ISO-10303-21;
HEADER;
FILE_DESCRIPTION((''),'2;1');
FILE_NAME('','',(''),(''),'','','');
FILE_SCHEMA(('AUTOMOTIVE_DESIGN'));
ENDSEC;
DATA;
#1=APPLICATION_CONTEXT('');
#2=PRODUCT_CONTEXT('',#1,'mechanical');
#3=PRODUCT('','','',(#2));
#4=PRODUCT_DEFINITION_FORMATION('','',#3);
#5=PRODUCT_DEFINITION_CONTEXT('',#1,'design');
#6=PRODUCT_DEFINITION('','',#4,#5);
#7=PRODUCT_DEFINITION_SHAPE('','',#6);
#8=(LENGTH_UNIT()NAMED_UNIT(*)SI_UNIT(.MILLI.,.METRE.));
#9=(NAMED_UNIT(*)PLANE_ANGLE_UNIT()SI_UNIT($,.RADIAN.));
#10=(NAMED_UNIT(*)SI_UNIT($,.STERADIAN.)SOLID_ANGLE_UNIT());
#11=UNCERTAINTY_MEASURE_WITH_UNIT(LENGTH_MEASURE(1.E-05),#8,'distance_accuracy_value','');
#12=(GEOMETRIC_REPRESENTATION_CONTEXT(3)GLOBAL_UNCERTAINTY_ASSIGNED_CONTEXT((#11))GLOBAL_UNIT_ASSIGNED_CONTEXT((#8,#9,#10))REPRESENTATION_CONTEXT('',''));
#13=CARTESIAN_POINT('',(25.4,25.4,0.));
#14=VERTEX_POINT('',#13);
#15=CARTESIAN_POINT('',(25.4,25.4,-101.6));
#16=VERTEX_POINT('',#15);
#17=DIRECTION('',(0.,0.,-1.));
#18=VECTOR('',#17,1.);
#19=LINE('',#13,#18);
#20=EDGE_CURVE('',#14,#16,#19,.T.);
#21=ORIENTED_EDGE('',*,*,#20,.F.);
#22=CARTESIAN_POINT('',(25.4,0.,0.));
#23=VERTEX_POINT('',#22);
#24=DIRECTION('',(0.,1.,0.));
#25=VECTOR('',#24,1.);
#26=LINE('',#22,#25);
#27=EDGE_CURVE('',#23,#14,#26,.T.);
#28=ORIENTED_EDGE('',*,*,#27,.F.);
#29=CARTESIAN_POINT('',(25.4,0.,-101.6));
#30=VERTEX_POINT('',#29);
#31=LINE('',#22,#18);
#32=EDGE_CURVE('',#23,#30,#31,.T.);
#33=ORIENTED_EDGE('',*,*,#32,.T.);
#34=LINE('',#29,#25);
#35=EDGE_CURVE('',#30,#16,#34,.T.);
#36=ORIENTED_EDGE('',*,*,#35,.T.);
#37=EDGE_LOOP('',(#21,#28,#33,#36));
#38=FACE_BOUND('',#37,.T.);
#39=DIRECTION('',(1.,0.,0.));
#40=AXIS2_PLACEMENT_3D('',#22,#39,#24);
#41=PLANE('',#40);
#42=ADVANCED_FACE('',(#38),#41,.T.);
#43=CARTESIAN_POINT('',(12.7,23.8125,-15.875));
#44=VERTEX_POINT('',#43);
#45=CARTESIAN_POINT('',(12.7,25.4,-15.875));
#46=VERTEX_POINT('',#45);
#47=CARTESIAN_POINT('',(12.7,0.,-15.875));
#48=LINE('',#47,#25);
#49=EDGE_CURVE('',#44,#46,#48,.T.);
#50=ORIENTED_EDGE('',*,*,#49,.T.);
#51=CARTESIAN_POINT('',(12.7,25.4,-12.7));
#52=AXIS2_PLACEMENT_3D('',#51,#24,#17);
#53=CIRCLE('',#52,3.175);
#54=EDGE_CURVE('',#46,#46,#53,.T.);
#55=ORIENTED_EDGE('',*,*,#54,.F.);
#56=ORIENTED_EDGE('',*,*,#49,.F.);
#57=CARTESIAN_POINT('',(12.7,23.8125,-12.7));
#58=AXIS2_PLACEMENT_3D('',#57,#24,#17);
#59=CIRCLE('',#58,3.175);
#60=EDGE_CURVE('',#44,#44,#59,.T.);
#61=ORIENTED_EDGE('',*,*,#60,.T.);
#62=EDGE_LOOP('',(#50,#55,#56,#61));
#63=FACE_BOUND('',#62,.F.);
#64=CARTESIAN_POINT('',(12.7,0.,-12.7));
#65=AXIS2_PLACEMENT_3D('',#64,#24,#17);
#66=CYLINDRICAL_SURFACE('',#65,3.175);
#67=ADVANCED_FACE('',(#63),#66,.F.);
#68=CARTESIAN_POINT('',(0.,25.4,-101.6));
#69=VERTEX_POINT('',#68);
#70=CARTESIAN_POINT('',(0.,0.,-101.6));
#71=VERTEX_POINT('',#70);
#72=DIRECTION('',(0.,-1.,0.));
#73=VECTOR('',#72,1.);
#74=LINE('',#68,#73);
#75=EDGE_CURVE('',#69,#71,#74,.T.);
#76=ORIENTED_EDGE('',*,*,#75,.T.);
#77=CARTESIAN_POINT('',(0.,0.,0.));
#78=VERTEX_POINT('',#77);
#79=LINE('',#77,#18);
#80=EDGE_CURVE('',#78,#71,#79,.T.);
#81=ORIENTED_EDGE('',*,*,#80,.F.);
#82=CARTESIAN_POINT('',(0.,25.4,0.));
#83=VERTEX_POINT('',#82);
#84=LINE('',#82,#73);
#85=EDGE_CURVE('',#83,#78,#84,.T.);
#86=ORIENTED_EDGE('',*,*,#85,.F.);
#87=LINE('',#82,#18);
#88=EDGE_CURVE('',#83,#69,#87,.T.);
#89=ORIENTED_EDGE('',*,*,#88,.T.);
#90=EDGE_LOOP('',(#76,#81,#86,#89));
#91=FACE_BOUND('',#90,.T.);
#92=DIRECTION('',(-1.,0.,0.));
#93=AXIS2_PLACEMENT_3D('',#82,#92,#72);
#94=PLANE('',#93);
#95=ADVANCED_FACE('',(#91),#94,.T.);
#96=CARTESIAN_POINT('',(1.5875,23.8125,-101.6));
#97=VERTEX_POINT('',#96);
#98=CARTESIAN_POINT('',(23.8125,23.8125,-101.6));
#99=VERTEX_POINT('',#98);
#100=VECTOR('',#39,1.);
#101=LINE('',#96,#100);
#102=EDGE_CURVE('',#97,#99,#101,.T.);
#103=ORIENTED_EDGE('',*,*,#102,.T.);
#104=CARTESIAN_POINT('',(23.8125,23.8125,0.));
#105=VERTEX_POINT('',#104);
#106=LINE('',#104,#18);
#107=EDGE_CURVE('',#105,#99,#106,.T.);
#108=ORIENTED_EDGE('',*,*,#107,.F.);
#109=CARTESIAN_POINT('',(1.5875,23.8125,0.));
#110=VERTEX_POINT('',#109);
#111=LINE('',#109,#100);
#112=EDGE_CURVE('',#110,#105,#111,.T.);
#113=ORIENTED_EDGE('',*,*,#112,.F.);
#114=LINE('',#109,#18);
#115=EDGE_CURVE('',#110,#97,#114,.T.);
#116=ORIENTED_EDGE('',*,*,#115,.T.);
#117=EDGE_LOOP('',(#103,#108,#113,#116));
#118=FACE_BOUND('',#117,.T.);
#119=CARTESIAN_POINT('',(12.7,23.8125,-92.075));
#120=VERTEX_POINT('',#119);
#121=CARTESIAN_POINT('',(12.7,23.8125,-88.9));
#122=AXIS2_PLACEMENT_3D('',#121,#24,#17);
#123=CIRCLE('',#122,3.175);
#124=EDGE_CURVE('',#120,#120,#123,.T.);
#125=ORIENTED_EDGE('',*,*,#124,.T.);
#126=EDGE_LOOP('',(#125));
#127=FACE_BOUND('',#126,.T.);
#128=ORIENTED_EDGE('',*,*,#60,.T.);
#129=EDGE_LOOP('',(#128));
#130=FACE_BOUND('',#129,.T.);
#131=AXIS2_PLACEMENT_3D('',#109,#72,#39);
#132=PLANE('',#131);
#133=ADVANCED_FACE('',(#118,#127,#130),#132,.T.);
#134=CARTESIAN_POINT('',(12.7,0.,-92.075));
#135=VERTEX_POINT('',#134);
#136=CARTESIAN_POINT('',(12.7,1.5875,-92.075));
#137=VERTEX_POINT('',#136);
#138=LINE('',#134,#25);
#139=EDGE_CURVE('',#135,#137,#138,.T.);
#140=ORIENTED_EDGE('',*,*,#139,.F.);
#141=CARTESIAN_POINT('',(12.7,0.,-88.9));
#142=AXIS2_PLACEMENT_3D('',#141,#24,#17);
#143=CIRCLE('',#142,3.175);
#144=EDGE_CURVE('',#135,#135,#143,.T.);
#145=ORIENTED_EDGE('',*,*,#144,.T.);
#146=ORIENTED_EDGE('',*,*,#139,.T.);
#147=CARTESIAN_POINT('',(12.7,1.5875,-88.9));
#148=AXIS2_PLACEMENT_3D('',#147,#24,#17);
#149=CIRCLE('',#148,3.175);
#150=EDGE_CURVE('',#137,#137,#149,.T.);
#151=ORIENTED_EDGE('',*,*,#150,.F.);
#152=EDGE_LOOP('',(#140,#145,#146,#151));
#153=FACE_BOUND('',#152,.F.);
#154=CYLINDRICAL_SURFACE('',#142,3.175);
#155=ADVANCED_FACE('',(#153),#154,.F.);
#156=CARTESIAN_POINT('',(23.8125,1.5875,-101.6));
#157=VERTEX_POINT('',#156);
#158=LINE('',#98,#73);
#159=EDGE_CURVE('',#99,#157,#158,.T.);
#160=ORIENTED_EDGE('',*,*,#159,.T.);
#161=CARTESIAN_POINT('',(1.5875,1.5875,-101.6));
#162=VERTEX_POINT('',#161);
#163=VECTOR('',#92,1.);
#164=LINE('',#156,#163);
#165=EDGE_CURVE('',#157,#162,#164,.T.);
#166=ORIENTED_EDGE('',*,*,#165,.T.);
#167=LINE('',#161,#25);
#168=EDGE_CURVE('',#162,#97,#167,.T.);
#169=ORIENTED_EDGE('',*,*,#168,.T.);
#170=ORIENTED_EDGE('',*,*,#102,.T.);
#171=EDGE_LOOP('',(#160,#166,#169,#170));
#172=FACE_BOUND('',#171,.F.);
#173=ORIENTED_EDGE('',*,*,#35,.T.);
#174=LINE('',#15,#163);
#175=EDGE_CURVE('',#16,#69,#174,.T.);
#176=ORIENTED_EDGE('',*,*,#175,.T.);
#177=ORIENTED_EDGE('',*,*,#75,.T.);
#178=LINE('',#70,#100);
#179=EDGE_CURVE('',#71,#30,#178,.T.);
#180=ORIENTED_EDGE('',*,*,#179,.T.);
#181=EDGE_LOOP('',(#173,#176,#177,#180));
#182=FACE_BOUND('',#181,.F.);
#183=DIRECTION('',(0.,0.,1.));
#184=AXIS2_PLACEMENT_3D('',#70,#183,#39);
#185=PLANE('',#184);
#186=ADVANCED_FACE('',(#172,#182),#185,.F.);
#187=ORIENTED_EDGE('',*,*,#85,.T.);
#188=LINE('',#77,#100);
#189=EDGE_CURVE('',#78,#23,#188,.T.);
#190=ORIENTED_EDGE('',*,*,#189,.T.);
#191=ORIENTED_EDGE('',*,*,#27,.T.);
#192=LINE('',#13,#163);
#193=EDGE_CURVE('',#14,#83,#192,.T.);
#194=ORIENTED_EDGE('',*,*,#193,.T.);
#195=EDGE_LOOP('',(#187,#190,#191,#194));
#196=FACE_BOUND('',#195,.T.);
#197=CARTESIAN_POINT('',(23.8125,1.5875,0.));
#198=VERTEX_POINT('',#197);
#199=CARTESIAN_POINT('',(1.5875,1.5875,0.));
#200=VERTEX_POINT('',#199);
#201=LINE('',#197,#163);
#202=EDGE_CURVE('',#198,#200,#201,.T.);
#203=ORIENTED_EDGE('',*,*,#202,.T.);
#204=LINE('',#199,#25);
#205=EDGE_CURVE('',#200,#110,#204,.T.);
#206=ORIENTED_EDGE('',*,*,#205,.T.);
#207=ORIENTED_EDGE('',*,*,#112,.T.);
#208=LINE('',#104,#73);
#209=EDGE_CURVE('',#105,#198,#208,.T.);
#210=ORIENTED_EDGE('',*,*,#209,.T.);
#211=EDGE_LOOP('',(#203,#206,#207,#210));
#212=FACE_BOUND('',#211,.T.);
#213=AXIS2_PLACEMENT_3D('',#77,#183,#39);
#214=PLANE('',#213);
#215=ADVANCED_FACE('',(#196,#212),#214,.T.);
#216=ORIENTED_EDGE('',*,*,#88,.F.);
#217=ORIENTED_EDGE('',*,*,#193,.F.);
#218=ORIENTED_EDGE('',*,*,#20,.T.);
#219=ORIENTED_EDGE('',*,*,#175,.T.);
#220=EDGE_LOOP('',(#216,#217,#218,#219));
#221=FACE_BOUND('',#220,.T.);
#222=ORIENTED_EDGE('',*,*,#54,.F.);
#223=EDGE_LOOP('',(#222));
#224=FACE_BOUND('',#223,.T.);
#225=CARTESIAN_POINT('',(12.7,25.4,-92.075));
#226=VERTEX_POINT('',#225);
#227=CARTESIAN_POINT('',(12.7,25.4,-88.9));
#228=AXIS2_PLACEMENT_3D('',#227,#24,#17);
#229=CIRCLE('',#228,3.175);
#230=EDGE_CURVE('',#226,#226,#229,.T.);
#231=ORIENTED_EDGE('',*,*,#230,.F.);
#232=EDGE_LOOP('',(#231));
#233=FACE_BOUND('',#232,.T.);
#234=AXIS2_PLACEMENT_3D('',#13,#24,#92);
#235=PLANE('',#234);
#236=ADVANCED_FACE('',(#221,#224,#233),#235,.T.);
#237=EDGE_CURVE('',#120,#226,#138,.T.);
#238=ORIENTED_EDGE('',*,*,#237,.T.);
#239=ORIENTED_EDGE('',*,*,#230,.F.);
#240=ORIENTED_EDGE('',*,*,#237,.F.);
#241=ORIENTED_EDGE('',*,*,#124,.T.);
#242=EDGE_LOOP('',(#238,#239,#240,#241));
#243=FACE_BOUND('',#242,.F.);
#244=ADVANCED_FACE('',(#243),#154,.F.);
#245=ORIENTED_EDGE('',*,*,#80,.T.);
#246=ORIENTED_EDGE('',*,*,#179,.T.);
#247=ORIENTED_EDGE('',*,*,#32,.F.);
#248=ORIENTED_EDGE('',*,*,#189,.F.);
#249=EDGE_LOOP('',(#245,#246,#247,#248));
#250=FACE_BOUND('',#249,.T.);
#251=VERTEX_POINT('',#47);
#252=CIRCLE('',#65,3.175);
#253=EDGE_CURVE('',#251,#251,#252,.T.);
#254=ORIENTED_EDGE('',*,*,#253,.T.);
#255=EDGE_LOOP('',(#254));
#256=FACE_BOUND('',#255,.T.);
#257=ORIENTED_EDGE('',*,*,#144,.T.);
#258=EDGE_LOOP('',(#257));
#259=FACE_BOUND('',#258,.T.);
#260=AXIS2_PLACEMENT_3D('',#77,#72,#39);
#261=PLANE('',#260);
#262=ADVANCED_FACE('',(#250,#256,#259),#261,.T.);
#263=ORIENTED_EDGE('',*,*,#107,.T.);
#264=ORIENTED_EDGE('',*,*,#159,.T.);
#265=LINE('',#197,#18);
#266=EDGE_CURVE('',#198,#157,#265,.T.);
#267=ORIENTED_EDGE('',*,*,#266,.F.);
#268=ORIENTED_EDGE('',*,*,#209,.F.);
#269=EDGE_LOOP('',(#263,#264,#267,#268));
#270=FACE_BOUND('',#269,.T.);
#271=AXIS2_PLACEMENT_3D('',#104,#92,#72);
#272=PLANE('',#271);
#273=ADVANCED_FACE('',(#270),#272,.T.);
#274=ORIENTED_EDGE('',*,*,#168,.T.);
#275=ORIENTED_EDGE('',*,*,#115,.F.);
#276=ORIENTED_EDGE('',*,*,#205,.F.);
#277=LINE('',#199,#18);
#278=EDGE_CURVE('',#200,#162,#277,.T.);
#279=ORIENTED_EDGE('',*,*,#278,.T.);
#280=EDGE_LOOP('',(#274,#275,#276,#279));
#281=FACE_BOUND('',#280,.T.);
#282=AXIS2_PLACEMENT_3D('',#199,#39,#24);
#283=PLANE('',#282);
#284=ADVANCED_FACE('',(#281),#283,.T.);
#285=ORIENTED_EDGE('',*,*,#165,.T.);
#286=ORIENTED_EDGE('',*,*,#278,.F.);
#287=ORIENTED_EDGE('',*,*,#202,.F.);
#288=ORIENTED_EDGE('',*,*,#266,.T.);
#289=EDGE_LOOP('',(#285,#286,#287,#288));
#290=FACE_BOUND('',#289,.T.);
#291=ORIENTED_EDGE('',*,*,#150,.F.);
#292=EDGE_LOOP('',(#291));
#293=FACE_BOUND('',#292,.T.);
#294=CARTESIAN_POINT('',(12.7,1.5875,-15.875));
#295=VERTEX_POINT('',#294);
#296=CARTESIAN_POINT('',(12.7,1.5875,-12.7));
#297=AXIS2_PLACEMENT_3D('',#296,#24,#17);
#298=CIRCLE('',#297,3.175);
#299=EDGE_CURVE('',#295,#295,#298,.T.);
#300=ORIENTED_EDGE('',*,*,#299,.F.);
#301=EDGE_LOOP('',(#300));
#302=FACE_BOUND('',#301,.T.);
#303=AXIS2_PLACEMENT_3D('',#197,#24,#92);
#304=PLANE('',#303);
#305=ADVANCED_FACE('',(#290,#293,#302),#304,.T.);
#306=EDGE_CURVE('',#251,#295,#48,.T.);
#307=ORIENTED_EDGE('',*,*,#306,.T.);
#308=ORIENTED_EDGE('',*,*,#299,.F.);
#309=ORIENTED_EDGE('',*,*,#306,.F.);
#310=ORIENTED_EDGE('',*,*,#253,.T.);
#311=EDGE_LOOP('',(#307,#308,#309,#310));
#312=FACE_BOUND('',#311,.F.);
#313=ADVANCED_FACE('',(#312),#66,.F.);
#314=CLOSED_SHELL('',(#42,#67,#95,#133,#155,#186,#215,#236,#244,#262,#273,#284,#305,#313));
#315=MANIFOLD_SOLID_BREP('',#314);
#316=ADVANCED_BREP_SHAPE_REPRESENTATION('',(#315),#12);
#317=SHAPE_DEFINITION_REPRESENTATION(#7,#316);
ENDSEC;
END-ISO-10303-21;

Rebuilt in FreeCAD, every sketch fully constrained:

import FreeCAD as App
import Part
import Sketcher
Q = App.Units.Quantity

doc = App.newDocument("Part")
body = doc.addObject("PartDesign::Body", "Body")

# Sketch on XY plane
sketch1 = body.newObject("Sketcher::SketchObject", "Sketch")
sketch1.AttachmentSupport = (doc.getObject("XY_Plane"), [""])
sketch1.MapMode = "FlatFace"
sketch1.addGeometry(Part.LineSegment(App.Vector(0, 25, 0), App.Vector(0, 0, 0)), False)
sketch1.addGeometry(Part.LineSegment(App.Vector(0, 0, 0), App.Vector(25, 0, 0)), False)
sketch1.addGeometry(Part.LineSegment(App.Vector(25, 0, 0), App.Vector(25, 25, 0)), False)
sketch1.addGeometry(Part.LineSegment(App.Vector(25, 25, 0), App.Vector(0, 25, 0)), False)
sketch1.addGeometry(Part.LineSegment(App.Vector(2, 2, 0), App.Vector(2, 24, 0)), False)
sketch1.addGeometry(Part.LineSegment(App.Vector(2, 24, 0), App.Vector(24, 24, 0)), False)
sketch1.addGeometry(Part.LineSegment(App.Vector(24, 24, 0), App.Vector(24, 2, 0)), False)
sketch1.addGeometry(Part.LineSegment(App.Vector(24, 2, 0), App.Vector(2, 2, 0)), False)
sketch1.addConstraint(Sketcher.Constraint("Coincident", 0, 2, 1, 1))
sketch1.addConstraint(Sketcher.Constraint("Coincident", 1, 2, 2, 1))
sketch1.addConstraint(Sketcher.Constraint("Coincident", 2, 2, 3, 1))
sketch1.addConstraint(Sketcher.Constraint("Coincident", 3, 2, 0, 1))
sketch1.addConstraint(Sketcher.Constraint("Coincident", 4, 2, 5, 1))
sketch1.addConstraint(Sketcher.Constraint("Coincident", 5, 2, 6, 1))
sketch1.addConstraint(Sketcher.Constraint("Coincident", 6, 2, 7, 1))
sketch1.addConstraint(Sketcher.Constraint("Coincident", 7, 2, 4, 1))
sketch1.addConstraint(Sketcher.Constraint("Vertical", 0))
sketch1.addConstraint(Sketcher.Constraint("Horizontal", 1))
sketch1.addConstraint(Sketcher.Constraint("Vertical", 2))
sketch1.addConstraint(Sketcher.Constraint("Horizontal", 3))
sketch1.addConstraint(Sketcher.Constraint("Vertical", 4))
sketch1.addConstraint(Sketcher.Constraint("Horizontal", 5))
sketch1.addConstraint(Sketcher.Constraint("Vertical", 6))
sketch1.addConstraint(Sketcher.Constraint("Horizontal", 7))
sketch1.addConstraint(Sketcher.Constraint("Coincident", 0, 2, -1, 1))
sketch1.addConstraint(Sketcher.Constraint("Equal", 3, 0))
sketch1.addConstraint(Sketcher.Constraint("Equal", 7, 4))
sketch1.addConstraint(Sketcher.Constraint("DistanceX", 1, 1, 1, 2, Q("1 in")))
sketch1.addConstraint(Sketcher.Constraint("DistanceX", -1, 1, 4, 2, Q("0.0625 in")))
sketch1.addConstraint(Sketcher.Constraint("DistanceY", -1, 1, 6, 2, Q("0.0625 in")))
sketch1.addConstraint(Sketcher.Constraint("DistanceY", 4, 2, 3, 2, Q("0.0625 in")))
pad1 = body.newObject("PartDesign::Pad", "Pad")
pad1.Profile = sketch1
pad1.Length = Q("4 in")
pad1.Reversed = True

# Sketch on XZ plane
sketch2 = body.newObject("Sketcher::SketchObject", "Sketch001")
sketch2.AttachmentSupport = (doc.getObject("XZ_Plane"), [""])
sketch2.MapMode = "FlatFace"
sketch2.addGeometry(Part.Circle(App.Vector(12.7, -12.7, 0), App.Vector(0, 0, 1), 3.2), False)
sketch2.addGeometry(Part.Circle(App.Vector(12.7, -88.9, 0), App.Vector(0, 0, 1), 3.2), False)
sketch2.addConstraint(Sketcher.Constraint("Equal", 0, 1))
sketch2.addConstraint(Sketcher.Constraint("Vertical", 0, 3, 1, 3))
sketch2.addConstraint(Sketcher.Constraint("Diameter", 0, Q("0.25 in")))
sketch2.addConstraint(Sketcher.Constraint("DistanceY", 1, 3, 0, 3, Q("3 in")))
sketch2.addConstraint(Sketcher.Constraint("DistanceX", -1, 1, 0, 3, Q("0.5 in")))
sketch2.addConstraint(Sketcher.Constraint("DistanceY", 0, 3, -1, 1, Q("0.5 in")))
doc.recompute()
hole = body.newObject("PartDesign::Hole", "Hole")
hole.Profile = sketch2
hole.ThreadType = "None"
hole.Diameter = Q("0.25 in")
hole.DepthType = "Dimension"
hole.Depth = Q("1 in")
hole.DrillPoint = "Angled"
hole.DrillPointAngle = 118

doc.recompute()
